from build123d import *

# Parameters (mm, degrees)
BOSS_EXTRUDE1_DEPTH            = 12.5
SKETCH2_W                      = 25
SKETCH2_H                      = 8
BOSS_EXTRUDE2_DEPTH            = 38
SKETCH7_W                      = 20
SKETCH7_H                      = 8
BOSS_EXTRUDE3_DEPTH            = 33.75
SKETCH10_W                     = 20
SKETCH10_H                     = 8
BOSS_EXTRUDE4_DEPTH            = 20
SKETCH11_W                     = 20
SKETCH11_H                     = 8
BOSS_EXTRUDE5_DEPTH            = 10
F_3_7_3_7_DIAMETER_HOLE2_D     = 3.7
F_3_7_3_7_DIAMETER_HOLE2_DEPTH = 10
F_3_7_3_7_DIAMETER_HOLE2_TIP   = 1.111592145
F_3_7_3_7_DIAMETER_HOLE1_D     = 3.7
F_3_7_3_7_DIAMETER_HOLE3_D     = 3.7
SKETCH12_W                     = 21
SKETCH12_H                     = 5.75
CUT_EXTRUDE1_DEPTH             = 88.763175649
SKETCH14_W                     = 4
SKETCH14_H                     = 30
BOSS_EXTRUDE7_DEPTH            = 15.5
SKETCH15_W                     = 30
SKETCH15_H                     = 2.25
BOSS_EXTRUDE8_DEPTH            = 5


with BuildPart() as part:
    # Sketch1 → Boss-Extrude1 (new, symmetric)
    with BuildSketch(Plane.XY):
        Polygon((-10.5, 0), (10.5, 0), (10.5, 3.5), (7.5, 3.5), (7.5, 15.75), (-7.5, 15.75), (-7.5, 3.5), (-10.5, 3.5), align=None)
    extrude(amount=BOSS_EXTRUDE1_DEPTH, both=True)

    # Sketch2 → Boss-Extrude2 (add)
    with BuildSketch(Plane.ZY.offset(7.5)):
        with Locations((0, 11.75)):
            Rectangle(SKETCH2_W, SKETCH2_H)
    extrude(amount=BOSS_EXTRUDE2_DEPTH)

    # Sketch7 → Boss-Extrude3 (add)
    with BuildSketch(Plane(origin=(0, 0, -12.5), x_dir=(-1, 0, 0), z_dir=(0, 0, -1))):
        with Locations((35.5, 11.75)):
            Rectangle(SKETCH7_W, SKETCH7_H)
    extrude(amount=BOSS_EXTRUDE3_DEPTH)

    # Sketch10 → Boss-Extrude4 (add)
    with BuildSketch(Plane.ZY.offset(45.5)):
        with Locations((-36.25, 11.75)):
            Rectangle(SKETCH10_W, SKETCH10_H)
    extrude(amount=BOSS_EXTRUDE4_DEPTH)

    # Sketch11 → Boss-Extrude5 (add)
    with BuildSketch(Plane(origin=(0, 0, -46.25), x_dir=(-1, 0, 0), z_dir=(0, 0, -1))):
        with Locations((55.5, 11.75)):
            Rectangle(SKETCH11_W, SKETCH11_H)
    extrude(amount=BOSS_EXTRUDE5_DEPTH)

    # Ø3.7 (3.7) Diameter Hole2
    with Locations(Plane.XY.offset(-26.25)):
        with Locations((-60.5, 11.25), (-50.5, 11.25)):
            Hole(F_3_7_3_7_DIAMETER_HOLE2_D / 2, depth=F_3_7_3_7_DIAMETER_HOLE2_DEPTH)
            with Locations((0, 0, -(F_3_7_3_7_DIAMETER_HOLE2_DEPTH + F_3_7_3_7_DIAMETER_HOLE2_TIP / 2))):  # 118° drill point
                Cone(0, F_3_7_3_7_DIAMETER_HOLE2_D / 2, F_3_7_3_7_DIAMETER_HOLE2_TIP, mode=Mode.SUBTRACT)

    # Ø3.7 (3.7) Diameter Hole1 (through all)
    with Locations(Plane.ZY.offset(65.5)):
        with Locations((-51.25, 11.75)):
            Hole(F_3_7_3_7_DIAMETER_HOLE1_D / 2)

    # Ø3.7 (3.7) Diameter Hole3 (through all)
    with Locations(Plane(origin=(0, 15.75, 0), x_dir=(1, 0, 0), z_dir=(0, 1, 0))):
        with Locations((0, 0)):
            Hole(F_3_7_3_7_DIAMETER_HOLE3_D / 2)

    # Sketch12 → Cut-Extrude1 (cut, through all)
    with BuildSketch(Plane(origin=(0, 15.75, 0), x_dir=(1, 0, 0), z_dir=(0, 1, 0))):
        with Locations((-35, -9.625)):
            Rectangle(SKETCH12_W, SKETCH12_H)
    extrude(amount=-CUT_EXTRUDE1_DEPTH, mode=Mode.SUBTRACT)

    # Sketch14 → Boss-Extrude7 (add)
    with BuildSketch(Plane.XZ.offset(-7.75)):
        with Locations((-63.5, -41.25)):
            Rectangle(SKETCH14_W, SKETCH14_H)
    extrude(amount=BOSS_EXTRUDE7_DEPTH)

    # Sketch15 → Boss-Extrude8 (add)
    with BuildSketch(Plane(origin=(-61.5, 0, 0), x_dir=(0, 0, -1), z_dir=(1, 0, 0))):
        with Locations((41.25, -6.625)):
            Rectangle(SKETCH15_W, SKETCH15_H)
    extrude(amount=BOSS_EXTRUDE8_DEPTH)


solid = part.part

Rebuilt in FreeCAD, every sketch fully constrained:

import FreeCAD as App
import Part
import Sketcher

doc = App.newDocument("Part")
body = doc.addObject("PartDesign::Body", "Body")

# Sketch on XY plane
sketch1 = body.newObject("Sketcher::SketchObject", "Sketch")
sketch1.AttachmentSupport = (doc.getObject("XY_Plane"), [""])
sketch1.MapMode = "FlatFace"
sketch1.addGeometry([
    Part.LineSegment(App.Vector(-10.5, 0, 0), App.Vector(10.5, 0, 0)),  # 0
    Part.LineSegment(App.Vector(10.5, 0, 0), App.Vector(10.5, 3.5, 0)),  # 1
    Part.LineSegment(App.Vector(10.5, 3.5, 0), App.Vector(7.5, 3.5, 0)),  # 2
    Part.LineSegment(App.Vector(7.5, 3.5, 0), App.Vector(7.5, 15.8, 0)),  # 3
    Part.LineSegment(App.Vector(7.5, 15.8, 0), App.Vector(-7.5, 15.8, 0)),  # 4
    Part.LineSegment(App.Vector(-7.5, 15.8, 0), App.Vector(-7.5, 3.5, 0)),  # 5
    Part.LineSegment(App.Vector(-7.5, 3.5, 0), App.Vector(-10.5, 3.5, 0)),  # 6
    Part.LineSegment(App.Vector(-10.5, 3.5, 0), App.Vector(-10.5, 0, 0)),  # 7
], False)
sketch1.addConstraint([
    Sketcher.Constraint("Coincident", 0, 2, 1, 1),
    Sketcher.Constraint("Coincident", 1, 2, 2, 1),
    Sketcher.Constraint("Coincident", 2, 2, 3, 1),
    Sketcher.Constraint("Coincident", 3, 2, 4, 1),
    Sketcher.Constraint("Coincident", 4, 2, 5, 1),
    Sketcher.Constraint("Coincident", 5, 2, 6, 1),
    Sketcher.Constraint("Coincident", 6, 2, 7, 1),
    Sketcher.Constraint("Coincident", 7, 2, 0, 1),
    Sketcher.Constraint("Horizontal", 0),
    Sketcher.Constraint("Vertical", 1),
    Sketcher.Constraint("Horizontal", 2),
    Sketcher.Constraint("Vertical", 3),
    Sketcher.Constraint("Horizontal", 4),
    Sketcher.Constraint("Vertical", 5),
    Sketcher.Constraint("Horizontal", 6),
    Sketcher.Constraint("Vertical", 7),
    Sketcher.Constraint("Symmetric", 0, 2, 7, 2, -1, 1),
    Sketcher.Constraint("Symmetric", 2, 2, 5, 2, -2),
    Sketcher.Constraint("DistanceX", 0, 1, 0, 2, 21.0),
    Sketcher.Constraint("DistanceX", 2, 2, 2, 1, 3.0),
    Sketcher.Constraint("DistanceY", 1, 1, 1, 2, 3.5),
    Sketcher.Constraint("DistanceY", 3, 1, 3, 2, 12.25),
])
pad1 = body.newObject("PartDesign::Pad", "Pad")
pad1.Profile = sketch1
pad1.Length = 25
pad1.Midplane = True

# Sketch on YZ plane
sketch2 = body.newObject("Sketcher::SketchObject", "Sketch001")
sketch2.AttachmentSupport = (doc.getObject("YZ_Plane"), [""])
sketch2.MapMode = "FlatFace"
sketch2.AttachmentOffset = App.Placement(App.Vector(0, 0, -7.5), App.Rotation())
sketch2.addGeometry([
    Part.LineSegment(App.Vector(16, -12, 0), App.Vector(8, -12, 0)),
    Part.LineSegment(App.Vector(8, -12, 0), App.Vector(8, 12, 0)),
    Part.LineSegment(App.Vector(8, 12, 0), App.Vector(16, 12, 0)),
    Part.LineSegment(App.Vector(16, 12, 0), App.Vector(16, -12, 0)),
], False)
sketch2.addConstraint([
    Sketcher.Constraint("Coincident", 0, 2, 1, 1),
    Sketcher.Constraint("Coincident", 1, 2, 2, 1),
    Sketcher.Constraint("Coincident", 2, 2, 3, 1),
    Sketcher.Constraint("Coincident", 3, 2, 0, 1),
    Sketcher.Constraint("Horizontal", 0),
    Sketcher.Constraint("Vertical", 1),
    Sketcher.Constraint("Horizontal", 2),
    Sketcher.Constraint("Vertical", 3),
    Sketcher.Constraint("DistanceX", 0, 2, 0, 1, 8.0),
    Sketcher.Constraint("DistanceY", 1, 1, 1, 2, 25.0),
    Sketcher.Constraint("DistanceY", 0, 2, -1, 1, 12.5),
    Sketcher.Constraint("DistanceX", -1, 1, 0, 2, 7.75),
])
pad2 = body.newObject("PartDesign::Pad", "Pad001")
pad2.Profile = sketch2
pad2.Length = 38
pad2.Reversed = True

# Sketch on XY plane
sketch3 = body.newObject("Sketcher::SketchObject", "Sketch002")
sketch3.AttachmentSupport = (doc.getObject("XY_Plane"), [""])
sketch3.MapMode = "FlatFace"
sketch3.AttachmentOffset = App.Placement(App.Vector(0, 0, -12.5), App.Rotation())
sketch3.addGeometry([
    Part.LineSegment(App.Vector(-26, 16, 0), App.Vector(-26, 8, 0)),
    Part.LineSegment(App.Vector(-26, 8, 0), App.Vector(-46, 8, 0)),
    Part.LineSegment(App.Vector(-46, 8, 0), App.Vector(-46, 16, 0)),
    Part.LineSegment(App.Vector(-46, 16, 0), App.Vector(-26, 16, 0)),
], False)
sketch3.addConstraint([
    Sketcher.Constraint("Coincident", 0, 2, 1, 1),
    Sketcher.Constraint("Coincident", 1, 2, 2, 1),
    Sketcher.Constraint("Coincident", 2, 2, 3, 1),
    Sketcher.Constraint("Coincident", 3, 2, 0, 1),
    Sketcher.Constraint("Vertical", 0),
    Sketcher.Constraint("Horizontal", 1),
    Sketcher.Constraint("Vertical", 2),
    Sketcher.Constraint("Horizontal", 3),
    Sketcher.Constraint("DistanceX", 1, 2, 1, 1, 20.0),
    Sketcher.Constraint("DistanceY", 0, 2, 0, 1, 8.0),
    Sketcher.Constraint("DistanceX", 0, 2, -1, 1, 25.5),
    Sketcher.Constraint("DistanceY", -1, 1, 0, 2, 7.75),
])
pad3 = body.newObject("PartDesign::Pad", "Pad002")
pad3.Profile = sketch3
pad3.Length = 33.75
pad3.Reversed = True

# Sketch on YZ plane
sketch4 = body.newObject("Sketcher::SketchObject", "Sketch003")
sketch4.AttachmentSupport = (doc.getObject("YZ_Plane"), [""])
sketch4.MapMode = "FlatFace"
sketch4.AttachmentOffset = App.Placement(App.Vector(0, 0, -45.5), App.Rotation())
sketch4.addGeometry([
    Part.LineSegment(App.Vector(16, -46, 0), App.Vector(8, -46, 0)),
    Part.LineSegment(App.Vector(8, -46, 0), App.Vector(8, -26, 0)),
    Part.LineSegment(App.Vector(8, -26, 0), App.Vector(16, -26, 0)),
    Part.LineSegment(App.Vector(16, -26, 0), App.Vector(16, -46, 0)),
], False)
sketch4.addConstraint([
    Sketcher.Constraint("Coincident", 0, 2, 1, 1),
    Sketcher.Constraint("Coincident", 1, 2, 2, 1),
    Sketcher.Constraint("Coincident", 2, 2, 3, 1),
    Sketcher.Constraint("Coincident", 3, 2, 0, 1),
    Sketcher.Constraint("Horizontal", 0),
    Sketcher.Constraint("Vertical", 1),
    Sketcher.Constraint("Horizontal", 2),
    Sketcher.Constraint("Vertical", 3),
    Sketcher.Constraint("DistanceX", 0, 2, 0, 1, 8.0),
    Sketcher.Constraint("DistanceY", 1, 1, 1, 2, 20.0),
    Sketcher.Constraint("DistanceX", -1, 1, 0, 2, 7.75),
    Sketcher.Constraint("DistanceY", 0, 2, -1, 1, 46.25),
])
pad4 = body.newObject("PartDesign::Pad", "Pad003")
pad4.Profile = sketch4
pad4.Length = 20
pad4.Reversed = True

# Sketch on XY plane
sketch5 = body.newObject("Sketcher::SketchObject", "Sketch004")
sketch5.AttachmentSupport = (doc.getObject("XY_Plane"), [""])
sketch5.MapMode = "FlatFace"
sketch5.AttachmentOffset = App.Placement(App.Vector(0, 0, -46.25), App.Rotation())
sketch5.addGeometry([
    Part.LineSegment(App.Vector(-46, 16, 0), App.Vector(-46, 8, 0)),
    Part.LineSegment(App.Vector(-46, 8, 0), App.Vector(-66, 8, 0)),
    Part.LineSegment(App.Vector(-66, 8, 0), App.Vector(-66, 16, 0)),
    Part.LineSegment(App.Vector(-66, 16, 0), App.Vector(-46, 16, 0)),
], False)
sketch5.addConstraint([
    Sketcher.Constraint("Coincident", 0, 2, 1, 1),
    Sketcher.Constraint("Coincident", 1, 2, 2, 1),
    Sketcher.Constraint("Coincident", 2, 2, 3, 1),
    Sketcher.Constraint("Coincident", 3, 2, 0, 1),
    Sketcher.Constraint("Vertical", 0),
    Sketcher.Constraint("Horizontal", 1),
    Sketcher.Constraint("Vertical", 2),
    Sketcher.Constraint("Horizontal", 3),
    Sketcher.Constraint("DistanceX", 1, 2, 1, 1, 20.0),
    Sketcher.Constraint("DistanceY", 0, 2, 0, 1, 8.0),
    Sketcher.Constraint("DistanceX", 0, 2, -1, 1, 45.5),
    Sketcher.Constraint("DistanceY", -1, 1, 0, 2, 7.75),
])
pad5 = body.newObject("PartDesign::Pad", "Pad004")
pad5.Profile = sketch5
pad5.Length = 10
pad5.Reversed = True

# Sketch on XY plane
sketch6 = body.newObject("Sketcher::SketchObject", "Sketch005")
sketch6.AttachmentSupport = (doc.getObject("XY_Plane"), [""])
sketch6.MapMode = "FlatFace"
sketch6.AttachmentOffset = App.Placement(App.Vector(0, 0, -26.25), App.Rotation())
sketch6.addGeometry([
    Part.Circle(App.Vector(-60.5, 11.2, 0), App.Vector(0, 0, 1), 1.9),
    Part.Circle(App.Vector(-50.5, 11.2, 0), App.Vector(0, 0, 1), 1.9),
], False)
sketch6.addConstraint([
    Sketcher.Constraint("Equal", 0, 1),
    Sketcher.Constraint("Horizontal", 0, 3, 1, 3),
    Sketcher.Constraint("Diameter", 0, 3.7),
    Sketcher.Constraint("DistanceX", 0, 3, 1, 3, 10.0),
    Sketcher.Constraint("DistanceX", 0, 3, -1, 1, 60.5),
    Sketcher.Constraint("DistanceY", -1, 1, 0, 3, 11.25),
])
doc.recompute()
hole = body.newObject("PartDesign::Hole", "Hole")
hole.Profile = sketch6
hole.ThreadType = "None"
hole.Diameter = 3.7
hole.DepthType = "Dimension"
hole.Depth = 10
hole.DrillPoint = "Angled"
hole.DrillPointAngle = 118

# Sketch on YZ plane
sketch7 = body.newObject("Sketcher::SketchObject", "Sketch006")
sketch7.AttachmentSupport = (doc.getObject("YZ_Plane"), [""])
sketch7.MapMode = "FlatFace"
sketch7.AttachmentOffset = App.Placement(App.Vector(0, 0, -65.5), App.Rotation())
sketch7.addGeometry(Part.Circle(App.Vector(11.8, -51.2, 0), App.Vector(0, 0, 1), 1.9), False)
sketch7.addConstraint([
    Sketcher.Constraint("Diameter", 0, 3.7),
    Sketcher.Constraint("DistanceX", -1, 1, 0, 3, 11.75),
    Sketcher.Constraint("DistanceY", 0, 3, -1, 1, 51.25),
])
doc.recompute()
hole2 = body.newObject("PartDesign::Hole", "Hole001")
hole2.Profile = sketch7
hole2.ThreadType = "None"
hole2.Diameter = 3.7
hole2.DepthType = "ThroughAll"
hole2.Reversed = True

# Sketch on XZ plane
sketch8 = body.newObject("Sketcher::SketchObject", "Sketch007")
sketch8.AttachmentSupport = (doc.getObject("XZ_Plane"), [""])
sketch8.MapMode = "FlatFace"
sketch8.AttachmentOffset = App.Placement(App.Vector(0, 0, -15.75), App.Rotation())
sketch8.addGeometry(Part.Circle(App.Vector(0, 0, 0), App.Vector(0, 0, 1), 1.9), False)
sketch8.addConstraint([
    Sketcher.Constraint("Coincident", 0, 3, -1, 1),
    Sketcher.Constraint("Diameter", 0, 3.7),
])
doc.recompute()
hole3 = body.newObject("PartDesign::Hole", "Hole002")
hole3.Profile = sketch8
hole3.ThreadType = "None"
hole3.Diameter = 3.7
hole3.DepthType = "ThroughAll"
hole3.Reversed = True

# Sketch on XZ plane
sketch9 = body.newObject("Sketcher::SketchObject", "Sketch008")
sketch9.AttachmentSupport = (doc.getObject("XZ_Plane"), [""])
sketch9.MapMode = "FlatFace"
sketch9.AttachmentOffset = App.Placement(App.Vector(0, 0, -15.75), App.Rotation())
sketch9.addGeometry([
    Part.LineSegment(App.Vector(-46, 7, 0), App.Vector(-46, 12, 0)),
    Part.LineSegment(App.Vector(-46, 12, 0), App.Vector(-24, 12, 0)),
    Part.LineSegment(App.Vector(-24, 12, 0), App.Vector(-24, 7, 0)),
    Part.LineSegment(App.Vector(-24, 7, 0), App.Vector(-46, 7, 0)),
], False)
sketch9.addConstraint([
    Sketcher.Constraint("Coincident", 0, 2, 1, 1),
    Sketcher.Constraint("Coincident", 1, 2, 2, 1),
    Sketcher.Constraint("Coincident", 2, 2, 3, 1),
    Sketcher.Constraint("Coincident", 3, 2, 0, 1),
    Sketcher.Constraint("Vertical", 0),
    Sketcher.Constraint("Horizontal", 1),
    Sketcher.Constraint("Vertical", 2),
    Sketcher.Constraint("Horizontal", 3),
    Sketcher.Constraint("DistanceX", 1, 1, 1, 2, 21.0),
    Sketcher.Constraint("DistanceY", 0, 1, 0, 2, 5.75),
    Sketcher.Constraint("DistanceX", 0, 2, -1, 1, 45.5),
    Sketcher.Constraint("DistanceY", -1, 1, 0, 2, 12.5),
])
pocket1 = body.newObject("PartDesign::Pocket", "Pocket")
pocket1.Profile = sketch9
pocket1.Type = "ThroughAll"
pocket1.Reversed = True

# Sketch on XZ plane
sketch10 = body.newObject("Sketcher::SketchObject", "Sketch009")
sketch10.AttachmentSupport = (doc.getObject("XZ_Plane"), [""])
sketch10.MapMode = "FlatFace"
sketch10.AttachmentOffset = App.Placement(App.Vector(0, 0, -7.75), App.Rotation())
sketch10.addGeometry([
    Part.LineSegment(App.Vector(-65.5, -26.2, 0), App.Vector(-65.5, -56.2, 0)),
    Part.LineSegment(App.Vector(-65.5, -56.2, 0), App.Vector(-61.5, -56.2, 0)),
    Part.LineSegment(App.Vector(-61.5, -56.2, 0), App.Vector(-61.5, -26.2, 0)),
    Part.LineSegment(App.Vector(-61.5, -26.2, 0), App.Vector(-65.5, -26.2, 0)),
], False)
sketch10.addConstraint([
    Sketcher.Constraint("Coincident", 0, 2, 1, 1),
    Sketcher.Constraint("Coincident", 1, 2, 2, 1),
    Sketcher.Constraint("Coincident", 2, 2, 3, 1),
    Sketcher.Constraint("Coincident", 3, 2, 0, 1),
    Sketcher.Constraint("Vertical", 0),
    Sketcher.Constraint("Horizontal", 1),
    Sketcher.Constraint("Vertical", 2),
    Sketcher.Constraint("Horizontal", 3),
    Sketcher.Constraint("DistanceX", 1, 1, 1, 2, 4.0),
    Sketcher.Constraint("DistanceY", 0, 2, 0, 1, 30.0),
    Sketcher.Constraint("DistanceX", 0, 2, -1, 1, 65.5),
    Sketcher.Constraint("DistanceY", 0, 2, -1, 1, 56.25),
])
pad6 = body.newObject("PartDesign::Pad", "Pad005")
pad6.Profile = sketch10
pad6.Length = 15.5

# Sketch on YZ plane
sketch11 = body.newObject("Sketcher::SketchObject", "Sketch010")
sketch11.AttachmentSupport = (doc.getObject("YZ_Plane"), [""])
sketch11.MapMode = "FlatFace"
sketch11.AttachmentOffset = App.Placement(App.Vector(0, 0, -61.5), App.Rotation())
sketch11.addGeometry([
    Part.LineSegment(App.Vector(-5.5, -26.2, 0), App.Vector(-7.8, -26.2, 0)),
    Part.LineSegment(App.Vector(-7.8, -26.2, 0), App.Vector(-7.8, -56.2, 0)),
    Part.LineSegment(App.Vector(-7.8, -56.2, 0), App.Vector(-5.5, -56.2, 0)),
    Part.LineSegment(App.Vector(-5.5, -56.2, 0), App.Vector(-5.5, -26.2, 0)),
], False)
sketch11.addConstraint([
    Sketcher.Constraint("Coincident", 0, 2, 1, 1),
    Sketcher.Constraint("Coincident", 1, 2, 2, 1),
    Sketcher.Constraint("Coincident", 2, 2, 3, 1),
    Sketcher.Constraint("Coincident", 3, 2, 0, 1),
    Sketcher.Constraint("Horizontal", 0),
    Sketcher.Constraint("Vertical", 1),
    Sketcher.Constraint("Horizontal", 2),
    Sketcher.Constraint("Vertical", 3),
    Sketcher.Constraint("DistanceY", 1, 2, 1, 1, 30.0),
    Sketcher.Constraint("DistanceX", 0, 2, 0, 1, 2.25),
    Sketcher.Constraint("DistanceX", 2, 2, -1, 1, 5.5),
    Sketcher.Constraint("DistanceY", 0, 2, -1, 1, 26.25),
])
pad7 = body.newObject("PartDesign::Pad", "Pad006")
pad7.Profile = sketch11
pad7.Length = 5

doc.recompute()
